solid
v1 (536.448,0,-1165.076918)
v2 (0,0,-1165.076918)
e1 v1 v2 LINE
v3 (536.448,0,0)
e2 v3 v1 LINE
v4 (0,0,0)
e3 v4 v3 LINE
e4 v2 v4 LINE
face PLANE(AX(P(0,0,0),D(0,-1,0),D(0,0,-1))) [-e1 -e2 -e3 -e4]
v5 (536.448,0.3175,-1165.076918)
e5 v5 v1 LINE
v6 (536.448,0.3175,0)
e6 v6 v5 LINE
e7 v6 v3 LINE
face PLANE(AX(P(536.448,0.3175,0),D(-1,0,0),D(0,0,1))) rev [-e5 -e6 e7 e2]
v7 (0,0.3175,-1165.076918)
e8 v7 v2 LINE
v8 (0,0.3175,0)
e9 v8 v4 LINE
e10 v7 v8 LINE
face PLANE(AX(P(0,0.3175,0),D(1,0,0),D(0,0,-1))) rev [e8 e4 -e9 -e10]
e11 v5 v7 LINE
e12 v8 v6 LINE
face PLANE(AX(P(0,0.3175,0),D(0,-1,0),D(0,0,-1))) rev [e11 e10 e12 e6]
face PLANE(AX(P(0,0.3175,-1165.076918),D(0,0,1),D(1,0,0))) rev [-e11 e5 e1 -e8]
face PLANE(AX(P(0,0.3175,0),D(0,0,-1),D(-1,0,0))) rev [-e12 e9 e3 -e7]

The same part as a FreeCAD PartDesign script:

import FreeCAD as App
import Part
import Sketcher

V = App.Vector
Q = App.Units.Quantity

doc = App.newDocument("Part")
body = doc.addObject("PartDesign::Body", "Body")

# Sketch on XZ plane
sketch1 = doc.addObject("Sketcher::SketchObject", "Sketch")
body.addObject(sketch1)
sketch1.AttachmentSupport = (doc.XZ_Plane, [""])
sketch1.MapMode = "FlatFace"
sketch1.addGeometry(Part.LineSegment(V(0, -1165, 0), V(0, 0, 0)), False)
sketch1.addGeometry(Part.LineSegment(V(0, 0, 0), V(536, 0, 0)), False)
sketch1.addGeometry(Part.LineSegment(V(536, 0, 0), V(536, -1165, 0)), False)
sketch1.addGeometry(Part.LineSegment(V(536, -1165, 0), V(0, -1165, 0)), False)
sketch1.addConstraint(Sketcher.Constraint("Coincident", 0, 2, 1, 1))
sketch1.addConstraint(Sketcher.Constraint("Coincident", 1, 2, 2, 1))
sketch1.addConstraint(Sketcher.Constraint("Coincident", 2, 2, 3, 1))
sketch1.addConstraint(Sketcher.Constraint("Coincident", 3, 2, 0, 1))
sketch1.addConstraint(Sketcher.Constraint("Vertical", 0))
sketch1.addConstraint(Sketcher.Constraint("Horizontal", 1))
sketch1.addConstraint(Sketcher.Constraint("Vertical", 2))
sketch1.addConstraint(Sketcher.Constraint("Horizontal", 3))
sketch1.addConstraint(Sketcher.Constraint("Coincident", 0, 2, -1, 1))
sketch1.addConstraint(Sketcher.Constraint("DistanceX", 1, 1, 1, 2, Q("21.12 in")))
sketch1.addConstraint(Sketcher.Constraint("DistanceY", 0, 1, 0, 2, 1165.076918))
pad1 = doc.addObject("PartDesign::Pad", "Pad")
body.addObject(pad1)
pad1.Profile = sketch1
pad1.Length = Q("0.0125 in")
pad1.Reversed = True

doc.recompute()
